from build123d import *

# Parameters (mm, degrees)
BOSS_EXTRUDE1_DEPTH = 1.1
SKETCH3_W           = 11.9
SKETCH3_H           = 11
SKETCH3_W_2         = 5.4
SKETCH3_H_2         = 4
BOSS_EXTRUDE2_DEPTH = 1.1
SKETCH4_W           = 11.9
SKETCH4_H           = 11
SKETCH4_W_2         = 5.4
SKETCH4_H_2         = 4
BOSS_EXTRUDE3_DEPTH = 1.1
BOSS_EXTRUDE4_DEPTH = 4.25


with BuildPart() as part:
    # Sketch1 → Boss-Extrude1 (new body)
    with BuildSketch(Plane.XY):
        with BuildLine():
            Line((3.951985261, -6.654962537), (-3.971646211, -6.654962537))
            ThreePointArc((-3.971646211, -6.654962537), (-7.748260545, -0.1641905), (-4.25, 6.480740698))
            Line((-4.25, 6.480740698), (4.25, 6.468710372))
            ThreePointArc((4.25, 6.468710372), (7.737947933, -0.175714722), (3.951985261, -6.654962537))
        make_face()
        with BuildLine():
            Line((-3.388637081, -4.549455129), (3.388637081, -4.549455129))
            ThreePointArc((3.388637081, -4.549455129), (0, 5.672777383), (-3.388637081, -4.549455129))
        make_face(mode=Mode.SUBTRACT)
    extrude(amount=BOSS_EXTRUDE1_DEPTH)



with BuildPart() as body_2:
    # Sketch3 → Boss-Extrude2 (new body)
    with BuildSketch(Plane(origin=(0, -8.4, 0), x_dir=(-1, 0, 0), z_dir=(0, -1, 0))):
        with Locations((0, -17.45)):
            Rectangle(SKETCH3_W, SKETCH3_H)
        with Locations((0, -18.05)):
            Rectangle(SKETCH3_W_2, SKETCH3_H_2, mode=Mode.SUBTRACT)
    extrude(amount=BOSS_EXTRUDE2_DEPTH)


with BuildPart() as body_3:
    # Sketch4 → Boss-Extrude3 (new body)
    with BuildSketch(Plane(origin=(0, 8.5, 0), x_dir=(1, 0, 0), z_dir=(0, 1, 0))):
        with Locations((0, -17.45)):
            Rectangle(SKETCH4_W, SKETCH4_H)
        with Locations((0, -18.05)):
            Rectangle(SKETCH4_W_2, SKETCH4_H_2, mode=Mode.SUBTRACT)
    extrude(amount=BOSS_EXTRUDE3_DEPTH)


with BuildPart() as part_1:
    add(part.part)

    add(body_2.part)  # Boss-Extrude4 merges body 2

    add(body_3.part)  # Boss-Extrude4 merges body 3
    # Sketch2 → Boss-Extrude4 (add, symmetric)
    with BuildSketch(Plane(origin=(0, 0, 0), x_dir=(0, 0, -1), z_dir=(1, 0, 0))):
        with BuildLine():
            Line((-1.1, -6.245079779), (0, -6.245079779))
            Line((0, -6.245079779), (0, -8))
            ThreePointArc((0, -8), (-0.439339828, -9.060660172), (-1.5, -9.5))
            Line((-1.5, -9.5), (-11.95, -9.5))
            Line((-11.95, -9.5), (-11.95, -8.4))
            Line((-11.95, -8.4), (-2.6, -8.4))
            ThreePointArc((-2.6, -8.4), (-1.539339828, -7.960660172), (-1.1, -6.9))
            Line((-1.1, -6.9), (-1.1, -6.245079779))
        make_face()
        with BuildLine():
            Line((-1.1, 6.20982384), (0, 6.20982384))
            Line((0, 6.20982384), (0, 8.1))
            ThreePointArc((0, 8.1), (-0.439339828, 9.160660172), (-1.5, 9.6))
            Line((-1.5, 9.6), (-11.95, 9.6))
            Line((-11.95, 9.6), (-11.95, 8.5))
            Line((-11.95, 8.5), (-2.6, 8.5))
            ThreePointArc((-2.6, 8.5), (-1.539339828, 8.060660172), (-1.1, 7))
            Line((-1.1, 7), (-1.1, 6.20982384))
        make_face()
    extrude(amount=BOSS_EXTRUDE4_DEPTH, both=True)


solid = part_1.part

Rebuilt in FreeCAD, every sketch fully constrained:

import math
import FreeCAD as App
import Part
import Sketcher


def add_polygon(sketch, points):
    """Adds a closed chain of lines whose ends are joined by coincident constraints."""
    first, n = sketch.GeometryCount, len(points)
    for a, b in zip(points, points[1:] + points[:1]):
        sketch.addGeometry(Part.LineSegment(App.Vector(*a, 0), App.Vector(*b, 0)), False)
    for i in range(n):
        sketch.addConstraint(Sketcher.Constraint("Coincident", first + i, 2, first + (i + 1) % n, 1))

doc = App.newDocument("Part")
body = doc.addObject("PartDesign::Body", "Body")

# Sketch on XY plane
sketch1 = doc.addObject("Sketcher::SketchObject", "Sketch")
body.addObject(sketch1)
sketch1.AttachmentSupport = (doc.XY_Plane, [""])
sketch1.MapMode = "FlatFace"
sketch1.addGeometry(Part.LineSegment(App.Vector(-4, -7, 0), App.Vector(4, -7, 0)), False)
sketch1.addGeometry(Part.ArcOfCircle(Part.Circle(App.Vector(0, 0, 0), App.Vector(0, 0, 1), 8), math.radians(-59), math.radians(57)), False)
sketch1.addGeometry(Part.LineSegment(App.Vector(4, 6, 0), App.Vector(-4, 6, 0)), False)
sketch1.addGeometry(Part.ArcOfCircle(Part.Circle(App.Vector(0, 0, 0), App.Vector(0, 0, 1), 8), math.radians(123), math.radians(239)), False)
sketch1.addGeometry(Part.ArcOfCircle(Part.Circle(App.Vector(0, 0, 0), App.Vector(0, 0, 1), 6), math.radians(-53), math.radians(233)), False)
sketch1.addGeometry(Part.LineSegment(App.Vector(3, -5, 0), App.Vector(-3, -5, 0)), False)
sketch1.addConstraint(Sketcher.Constraint("Coincident", 0, 2, 1, 1))
sketch1.addConstraint(Sketcher.Constraint("Coincident", 1, 2, 2, 1))
sketch1.addConstraint(Sketcher.Constraint("Coincident", 2, 2, 3, 1))
sketch1.addConstraint(Sketcher.Constraint("Coincident", 3, 2, 0, 1))
sketch1.addConstraint(Sketcher.Constraint("Coincident", 4, 1, 5, 1))
sketch1.addConstraint(Sketcher.Constraint("Coincident", 5, 2, 4, 2))
sketch1.addConstraint(Sketcher.Constraint("Horizontal", 0))
sketch1.addConstraint(Sketcher.Constraint("Horizontal", 5))
sketch1.addConstraint(Sketcher.Constraint("Coincident", 1, 3, -1, 1))
sketch1.addConstraint(Sketcher.Constraint("Coincident", 3, 3, -1, 1))
sketch1.addConstraint(Sketcher.Constraint("Coincident", 4, 3, -1, 1))
sketch1.addConstraint(Sketcher.Constraint("Radius", 3, 7.75))
sketch1.addConstraint(Sketcher.Constraint("DistanceX", 2, 2, 1, 2, 8.5))
sketch1.addConstraint(Sketcher.Constraint("DistanceX", -1, 1, 1, 2, 4.25))
sketch1.addConstraint(Sketcher.Constraint("Radius", 1, 7.739943))
sketch1.addConstraint(Sketcher.Constraint("Radius", 4, 5.672777))
sketch1.addConstraint(Sketcher.Constraint("DistanceX", 0, 1, 0, 2, 7.923631))
sketch1.addConstraint(Sketcher.Constraint("DistanceX", 5, 2, 5, 1, 6.777274))
pad1 = doc.addObject("PartDesign::Pad", "Pad")
body.addObject(pad1)
pad1.Profile = sketch1
pad1.Length = 1.1
body2 = doc.addObject("PartDesign::Body", "Body001")

# Sketch on XZ plane
sketch2 = doc.addObject("Sketcher::SketchObject", "Sketch001")
body2.addObject(sketch2)
sketch2.AttachmentSupport = (doc.getObject("XZ_Plane001"), [""])
sketch2.MapMode = "FlatFace"
sketch2.AttachmentOffset = App.Placement(App.Vector(0, 0, 8.4), App.Rotation())
add_polygon(sketch2, [(6, 11.9), (6, 22.9), (-6, 22.9), (-6, 11.9)])  # lines 0-3
add_polygon(sketch2, [(-2.7, 20.1), (2.7, 20.1), (2.7, 16.1), (-2.7, 16.1)])  # lines 4-7
sketch2.addConstraint(Sketcher.Constraint("Vertical", 0))
sketch2.addConstraint(Sketcher.Constraint("Horizontal", 1))
sketch2.addConstraint(Sketcher.Constraint("Vertical", 2))
sketch2.addConstraint(Sketcher.Constraint("Horizontal", 3))
sketch2.addConstraint(Sketcher.Constraint("Horizontal", 4))
sketch2.addConstraint(Sketcher.Constraint("Vertical", 5))
sketch2.addConstraint(Sketcher.Constraint("Horizontal", 6))
sketch2.addConstraint(Sketcher.Constraint("Vertical", 7))
sketch2.addConstraint(Sketcher.Constraint("DistanceY", 0, 1, 0, 2, 11.0))
sketch2.addConstraint(Sketcher.Constraint("DistanceY", 5, 2, 5, 1, 4.0))
sketch2.addConstraint(Sketcher.Constraint("DistanceX", 1, 2, 1, 1, 11.9))
sketch2.addConstraint(Sketcher.Constraint("DistanceX", 4, 1, 4, 2, 5.4))
sketch2.addConstraint(Sketcher.Constraint("DistanceX", -1, 1, 4, 2, 2.7))
sketch2.addConstraint(Sketcher.Constraint("DistanceY", 4, 2, 0, 2, 2.9))
sketch2.addConstraint(Sketcher.Constraint("DistanceX", -1, 1, 0, 2, 5.95))
sketch2.addConstraint(Sketcher.Constraint("DistanceY", -1, 1, 0, 2, 22.95))
pad2 = doc.addObject("PartDesign::Pad", "Pad001")
body2.addObject(pad2)
pad2.Profile = sketch2
pad2.Length = 1.1
body3 = doc.addObject("PartDesign::Body", "Body002")

# Sketch on XZ plane
sketch3 = doc.addObject("Sketcher::SketchObject", "Sketch002")
body3.addObject(sketch3)
sketch3.AttachmentSupport = (doc.getObject("XZ_Plane002"), [""])
sketch3.MapMode = "FlatFace"
sketch3.AttachmentOffset = App.Placement(App.Vector(0, 0, -8.5), App.Rotation())
add_polygon(sketch3, [(-6, 11.9), (-6, 22.9), (6, 22.9), (6, 11.9)])  # lines 0-3
add_polygon(sketch3, [(2.7, 20.1), (-2.7, 20.1), (-2.7, 16.1), (2.7, 16.1)])  # lines 4-7
sketch3.addConstraint(Sketcher.Constraint("Vertical", 0))
sketch3.addConstraint(Sketcher.Constraint("Horizontal", 1))
sketch3.addConstraint(Sketcher.Constraint("Vertical", 2))
sketch3.addConstraint(Sketcher.Constraint("Horizontal", 3))
sketch3.addConstraint(Sketcher.Constraint("Horizontal", 4))
sketch3.addConstraint(Sketcher.Constraint("Vertical", 5))
sketch3.addConstraint(Sketcher.Constraint("Horizontal", 6))
sketch3.addConstraint(Sketcher.Constraint("Vertical", 7))
sketch3.addConstraint(Sketcher.Constraint("DistanceY", 0, 1, 0, 2, 11.0))
sketch3.addConstraint(Sketcher.Constraint("DistanceY", 5, 2, 5, 1, 4.0))
sketch3.addConstraint(Sketcher.Constraint("DistanceX", 1, 1, 1, 2, 11.9))
sketch3.addConstraint(Sketcher.Constraint("DistanceX", 4, 2, 4, 1, 5.4))
sketch3.addConstraint(Sketcher.Constraint("DistanceX", 4, 2, -1, 1, 2.7))
sketch3.addConstraint(Sketcher.Constraint("DistanceY", 4, 2, 0, 2, 2.9))
sketch3.addConstraint(Sketcher.Constraint("DistanceX", 0, 2, -1, 1, 5.95))
sketch3.addConstraint(Sketcher.Constraint("DistanceY", -1, 1, 0, 2, 22.95))
pad3 = doc.addObject("PartDesign::Pad", "Pad002")
body3.addObject(pad3)
pad3.Profile = sketch3
pad3.Length = 1.1
pad3.Reversed = True
body.AllowCompound = True
doc.recompute()

boolean = doc.addObject("PartDesign::Boolean", "Boolean")
body.addObject(boolean)
boolean.Type = "Fuse"
boolean.addObjects([body2])
doc.recompute()

boolean2 = doc.addObject("PartDesign::Boolean", "Boolean001")
body.addObject(boolean2)
boolean2.Type = "Fuse"
boolean2.addObjects([body3])

# Sketch on YZ plane
sketch4 = doc.addObject("Sketcher::SketchObject", "Sketch003")
body.addObject(sketch4)
sketch4.AttachmentSupport = (doc.YZ_Plane, [""])
sketch4.MapMode = "FlatFace"
sketch4.addGeometry(Part.LineSegment(App.Vector(-6.2, 0, 0), App.Vector(-6.2, 1.1, 0)), False)
sketch4.addGeometry(Part.LineSegment(App.Vector(-6.2, 1.1, 0), App.Vector(-6.9, 1.1, 0)), False)
sketch4.addGeometry(Part.ArcOfCircle(Part.Circle(App.Vector(-6.9, 2.6, 0), App.Vector(0, 0, 1), 1.5), math.radians(180), math.radians(270)), False)
sketch4.addGeometry(Part.LineSegment(App.Vector(-8.4, 2.6, 0), App.Vector(-8.4, 11.9, 0)), False)
sketch4.addGeometry(Part.LineSegment(App.Vector(-8.4, 11.9, 0), App.Vector(-9.5, 11.9, 0)), False)
sketch4.addGeometry(Part.LineSegment(App.Vector(-9.5, 11.9, 0), App.Vector(-9.5, 1.5, 0)), False)
sketch4.addGeometry(Part.ArcOfCircle(Part.Circle(App.Vector(-8, 1.5, 0), App.Vector(0, 0, 1), 1.5), math.radians(180), math.radians(270)), False)
sketch4.addGeometry(Part.LineSegment(App.Vector(-8, 0, 0), App.Vector(-6.2, 0, 0)), False)
sketch4.addGeometry(Part.LineSegment(App.Vector(6.2, 1.1, 0), App.Vector(6.2, 0, 0)), False)
sketch4.addGeometry(Part.LineSegment(App.Vector(6.2, 0, 0), App.Vector(8.1, 0, 0)), False)
sketch4.addGeometry(Part.ArcOfCircle(Part.Circle(App.Vector(8.1, 1.5, 0), App.Vector(0, 0, 1), 1.5), math.radians(-90), math.radians(0)), False)
sketch4.addGeometry(Part.LineSegment(App.Vector(9.6, 1.5, 0), App.Vector(9.6, 11.9, 0)), False)
sketch4.addGeometry(Part.LineSegment(App.Vector(9.6, 11.9, 0), App.Vector(8.5, 11.9, 0)), False)
sketch4.addGeometry(Part.LineSegment(App.Vector(8.5, 11.9, 0), App.Vector(8.5, 2.6, 0)), False)
sketch4.addGeometry(Part.ArcOfCircle(Part.Circle(App.Vector(7, 2.6, 0), App.Vector(0, 0, 1), 1.5), math.radians(-90), math.radians(0)), False)
sketch4.addGeometry(Part.LineSegment(App.Vector(7, 1.1, 0), App.Vector(6.2, 1.1, 0)), False)
sketch4.addConstraint(Sketcher.Constraint("Coincident", 0, 2, 1, 1))
sketch4.addConstraint(Sketcher.Constraint("Tangent", 1, 2, 2, 2))
sketch4.addConstraint(Sketcher.Constraint("Tangent", 2, 1, 3, 1))
sketch4.addConstraint(Sketcher.Constraint("Coincident", 3, 2, 4, 1))
sketch4.addConstraint(Sketcher.Constraint("Coincident", 4, 2, 5, 1))
sketch4.addConstraint(Sketcher.Constraint("Tangent", 5, 2, 6, 1))
sketch4.addConstraint(Sketcher.Constraint("Tangent", 6, 2, 7, 1))
sketch4.addConstraint(Sketcher.Constraint("Coincident", 7, 2, 0, 1))
sketch4.addConstraint(Sketcher.Constraint("Coincident", 8, 2, 9, 1))
sketch4.addConstraint(Sketcher.Constraint("Tangent", 9, 2, 10, 1))
sketch4.addConstraint(Sketcher.Constraint("Tangent", 10, 2, 11, 1))
sketch4.addConstraint(Sketcher.Constraint("Coincident", 11, 2, 12, 1))
sketch4.addConstraint(Sketcher.Constraint("Coincident", 12, 2, 13, 1))
sketch4.addConstraint(Sketcher.Constraint("Tangent", 13, 2, 14, 2))
sketch4.addConstraint(Sketcher.Constraint("Tangent", 14, 1, 15, 1))
sketch4.addConstraint(Sketcher.Constraint("Coincident", 15, 2, 8, 1))
sketch4.addConstraint(Sketcher.Constraint("Vertical", 0))
sketch4.addConstraint(Sketcher.Constraint("Horizontal", 1))
sketch4.addConstraint(Sketcher.Constraint("Vertical", 3))
sketch4.addConstraint(Sketcher.Constraint("Horizontal", 4))
sketch4.addConstraint(Sketcher.Constraint("Vertical", 5))
sketch4.addConstraint(Sketcher.Constraint("Horizontal", 7))
sketch4.addConstraint(Sketcher.Constraint("Vertical", 8))
sketch4.addConstraint(Sketcher.Constraint("Horizontal", 9))
sketch4.addConstraint(Sketcher.Constraint("Vertical", 11))
sketch4.addConstraint(Sketcher.Constraint("Horizontal", 12))
sketch4.addConstraint(Sketcher.Constraint("Vertical", 13))
sketch4.addConstraint(Sketcher.Constraint("Horizontal", 15))
sketch4.addConstraint(Sketcher.Constraint("Equal", 2, 6))
sketch4.addConstraint(Sketcher.Constraint("Equal", 6, 10))
sketch4.addConstraint(Sketcher.Constraint("Equal", 10, 14))
sketch4.addConstraint(Sketcher.Constraint("PointOnObject", 6, 2, -1))
sketch4.addConstraint(Sketcher.Constraint("PointOnObject", 8, 2, -1))
sketch4.addConstraint(Sketcher.Constraint("Horizontal", 2, 3, 14, 3))
sketch4.addConstraint(Sketcher.Constraint("Horizontal", 4, 2, 11, 2))
sketch4.addConstraint(Sketcher.Constraint("Equal", 4, 12))
sketch4.addConstraint(Sketcher.Constraint("Equal", 12, 0))
sketch4.addConstraint(Sketcher.Constraint("Radius", 2, 1.5))
sketch4.addConstraint(Sketcher.Constraint("DistanceX", 4, 2, 4, 1, 1.1))
sketch4.addConstraint(Sketcher.Constraint("DistanceX", 6, 3, -1, 1, 8.0))
sketch4.addConstraint(Sketcher.Constraint("DistanceX", -1, 1, 14, 3, 7.0))
sketch4.addConstraint(Sketcher.Constraint("DistanceY", 3, 1, 3, 2, 9.35))
sketch4.addConstraint(Sketcher.Constraint("DistanceX", 1, 2, 1, 1, 0.65492))
sketch4.addConstraint(Sketcher.Constraint("DistanceX", 9, 1, 9, 2, 1.890176))
pad4 = doc.addObject("PartDesign::Pad", "Pad003")
body.addObject(pad4)
pad4.Profile = sketch4
pad4.Length = 8.5
pad4.Midplane = True

doc.recompute()
